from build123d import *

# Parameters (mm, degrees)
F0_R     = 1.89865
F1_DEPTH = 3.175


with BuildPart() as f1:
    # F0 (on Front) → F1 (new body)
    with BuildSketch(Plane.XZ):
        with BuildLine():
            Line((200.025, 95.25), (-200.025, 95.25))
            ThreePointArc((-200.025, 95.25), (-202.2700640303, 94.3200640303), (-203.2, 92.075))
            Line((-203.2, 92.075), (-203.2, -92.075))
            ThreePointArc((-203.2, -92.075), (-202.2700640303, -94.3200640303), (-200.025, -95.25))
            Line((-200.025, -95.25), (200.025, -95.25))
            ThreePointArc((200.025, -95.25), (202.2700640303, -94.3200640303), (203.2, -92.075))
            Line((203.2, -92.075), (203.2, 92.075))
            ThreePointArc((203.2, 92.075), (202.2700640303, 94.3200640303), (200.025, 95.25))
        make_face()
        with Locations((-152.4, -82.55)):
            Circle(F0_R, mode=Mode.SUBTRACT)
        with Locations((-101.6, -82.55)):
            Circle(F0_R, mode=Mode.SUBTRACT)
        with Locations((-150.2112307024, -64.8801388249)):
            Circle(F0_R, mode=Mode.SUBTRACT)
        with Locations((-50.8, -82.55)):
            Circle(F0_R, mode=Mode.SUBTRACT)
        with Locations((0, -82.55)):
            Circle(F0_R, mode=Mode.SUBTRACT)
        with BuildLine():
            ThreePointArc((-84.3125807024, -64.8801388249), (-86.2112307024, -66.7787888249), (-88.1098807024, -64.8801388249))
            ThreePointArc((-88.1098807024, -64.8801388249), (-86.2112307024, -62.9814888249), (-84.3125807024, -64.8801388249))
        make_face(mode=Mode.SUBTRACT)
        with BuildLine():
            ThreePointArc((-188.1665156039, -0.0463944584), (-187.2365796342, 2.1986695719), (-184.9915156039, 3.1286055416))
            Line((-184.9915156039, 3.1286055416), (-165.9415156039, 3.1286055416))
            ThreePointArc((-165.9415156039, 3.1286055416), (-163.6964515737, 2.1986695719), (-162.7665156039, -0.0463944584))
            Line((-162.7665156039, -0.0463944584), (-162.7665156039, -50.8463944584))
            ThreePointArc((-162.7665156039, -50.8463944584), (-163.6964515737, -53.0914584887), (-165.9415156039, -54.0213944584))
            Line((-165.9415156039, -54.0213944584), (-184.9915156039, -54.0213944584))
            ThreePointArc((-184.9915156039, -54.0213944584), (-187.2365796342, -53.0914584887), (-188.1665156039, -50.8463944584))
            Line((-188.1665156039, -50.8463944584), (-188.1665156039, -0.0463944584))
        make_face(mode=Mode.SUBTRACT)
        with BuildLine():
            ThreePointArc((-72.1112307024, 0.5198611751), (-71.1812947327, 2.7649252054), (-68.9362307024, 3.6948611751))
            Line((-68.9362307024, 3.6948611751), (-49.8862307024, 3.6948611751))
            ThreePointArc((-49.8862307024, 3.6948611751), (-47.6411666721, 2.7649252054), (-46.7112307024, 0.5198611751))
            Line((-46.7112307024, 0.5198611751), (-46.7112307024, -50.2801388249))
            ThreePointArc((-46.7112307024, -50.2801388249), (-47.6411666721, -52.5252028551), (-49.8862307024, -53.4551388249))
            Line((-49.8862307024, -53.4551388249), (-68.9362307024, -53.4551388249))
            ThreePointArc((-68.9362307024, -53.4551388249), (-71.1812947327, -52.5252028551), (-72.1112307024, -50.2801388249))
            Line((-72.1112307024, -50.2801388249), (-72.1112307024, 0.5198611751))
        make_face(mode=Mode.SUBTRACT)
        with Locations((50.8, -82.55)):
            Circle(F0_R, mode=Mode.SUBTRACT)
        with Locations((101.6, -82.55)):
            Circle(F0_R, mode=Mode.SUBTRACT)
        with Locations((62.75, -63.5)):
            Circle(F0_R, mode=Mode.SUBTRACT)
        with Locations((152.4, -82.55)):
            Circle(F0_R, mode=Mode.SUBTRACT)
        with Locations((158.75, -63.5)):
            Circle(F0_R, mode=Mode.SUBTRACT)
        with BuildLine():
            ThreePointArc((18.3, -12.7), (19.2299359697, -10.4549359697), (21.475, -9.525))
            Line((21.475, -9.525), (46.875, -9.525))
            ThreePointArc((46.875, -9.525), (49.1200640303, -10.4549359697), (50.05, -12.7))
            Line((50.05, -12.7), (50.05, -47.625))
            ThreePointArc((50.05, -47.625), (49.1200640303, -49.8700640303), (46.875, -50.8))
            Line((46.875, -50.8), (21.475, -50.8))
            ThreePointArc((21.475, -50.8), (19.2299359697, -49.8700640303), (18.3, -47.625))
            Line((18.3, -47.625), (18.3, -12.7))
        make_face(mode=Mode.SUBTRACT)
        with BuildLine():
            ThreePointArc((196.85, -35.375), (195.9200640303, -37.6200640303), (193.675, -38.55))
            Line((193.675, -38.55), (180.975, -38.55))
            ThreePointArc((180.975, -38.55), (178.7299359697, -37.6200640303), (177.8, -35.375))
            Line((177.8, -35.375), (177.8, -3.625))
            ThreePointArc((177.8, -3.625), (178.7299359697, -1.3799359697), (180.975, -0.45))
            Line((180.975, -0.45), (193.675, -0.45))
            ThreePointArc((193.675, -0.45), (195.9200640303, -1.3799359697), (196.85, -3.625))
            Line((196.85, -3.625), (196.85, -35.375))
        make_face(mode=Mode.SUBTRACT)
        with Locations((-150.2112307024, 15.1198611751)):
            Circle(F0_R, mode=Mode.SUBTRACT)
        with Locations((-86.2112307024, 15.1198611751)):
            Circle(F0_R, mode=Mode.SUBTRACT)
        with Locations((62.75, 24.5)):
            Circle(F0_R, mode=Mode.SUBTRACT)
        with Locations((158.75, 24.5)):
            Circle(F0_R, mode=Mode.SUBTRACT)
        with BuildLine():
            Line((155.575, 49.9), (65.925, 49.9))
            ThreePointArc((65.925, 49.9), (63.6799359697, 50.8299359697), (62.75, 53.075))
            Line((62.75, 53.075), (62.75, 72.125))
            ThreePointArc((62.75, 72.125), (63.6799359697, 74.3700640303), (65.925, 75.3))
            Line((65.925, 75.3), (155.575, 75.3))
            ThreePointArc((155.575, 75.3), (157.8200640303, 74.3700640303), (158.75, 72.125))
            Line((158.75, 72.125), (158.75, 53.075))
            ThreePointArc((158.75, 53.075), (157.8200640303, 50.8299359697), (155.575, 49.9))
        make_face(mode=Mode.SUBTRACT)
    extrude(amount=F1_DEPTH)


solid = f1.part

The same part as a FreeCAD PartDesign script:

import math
import FreeCAD as App
import Part
import Sketcher
from FreeCAD import Vector
Q = App.Units.Quantity

doc = App.newDocument("Part")
body = doc.addObject("PartDesign::Body", "Body")

# Sketch on XZ plane
sketch1 = body.newObject("Sketcher::SketchObject", "Sketch")
sketch1.AttachmentSupport = (doc.getObject("XZ_Plane"), [""])
sketch1.MapMode = "FlatFace"
sketch1.addGeometry([
    Part.LineSegment(Vector(200, 95.2, 0), Vector(-200, 95.2, 0)),  # 0
    Part.ArcOfCircle(Part.Circle(Vector(-200, 92.1, 0), Vector(0, 0, 1), 3.2), math.radians(90), math.radians(180)),  # 1
    Part.LineSegment(Vector(-203.2, 92.1, 0), Vector(-203.2, -92.1, 0)),  # 2
    Part.ArcOfCircle(Part.Circle(Vector(-200, -92.1, 0), Vector(0, 0, 1), 3.2), math.radians(180), math.radians(270)),  # 3
    Part.LineSegment(Vector(-200, -95.2, 0), Vector(200, -95.2, 0)),  # 4
    Part.ArcOfCircle(Part.Circle(Vector(200, -92.1, 0), Vector(0, 0, 1), 3.2), math.radians(-90), math.radians(0)),  # 5
    Part.LineSegment(Vector(203.2, -92.1, 0), Vector(203.2, 92.1, 0)),  # 6
    Part.ArcOfCircle(Part.Circle(Vector(200, 92.1, 0), Vector(0, 0, 1), 3.2), math.radians(0), math.radians(90)),  # 7
    Part.Circle(Vector(-152.4, -82.5, 0), Vector(0, 0, 1), 1.9),  # 8
    Part.Circle(Vector(-150.2, -64.9, 0), Vector(0, 0, 1), 1.9),  # 9
    Part.Circle(Vector(-101.6, -82.5, 0), Vector(0, 0, 1), 1.9),  # 10
    Part.Circle(Vector(-50.8, -82.5, 0), Vector(0, 0, 1), 1.9),  # 11
    Part.Circle(Vector(-86.2, -64.9, 0), Vector(0, 0, 1), 1.9),  # 12
    Part.Circle(Vector(0, -82.5, 0), Vector(0, 0, 1), 1.9),  # 13
    Part.LineSegment(Vector(-188.2, -50.8, 0), Vector(-188.2, 0, 0)),  # 14
    Part.ArcOfCircle(Part.Circle(Vector(-185, 0, 0), Vector(0, 0, 1), 3.2), math.radians(90), math.radians(180)),  # 15
    Part.LineSegment(Vector(-185, 3.1, 0), Vector(-165.9, 3.1, 0)),  # 16
    Part.ArcOfCircle(Part.Circle(Vector(-165.9, 0, 0), Vector(0, 0, 1), 3.2), math.radians(0), math.radians(90)),  # 17
    Part.LineSegment(Vector(-162.8, 0, 0), Vector(-162.8, -50.8, 0)),  # 18
    Part.ArcOfCircle(Part.Circle(Vector(-165.9, -50.8, 0), Vector(0, 0, 1), 3.2), math.radians(-90), math.radians(0)),  # 19
    Part.LineSegment(Vector(-165.9, -54, 0), Vector(-185, -54, 0)),  # 20
    Part.ArcOfCircle(Part.Circle(Vector(-185, -50.8, 0), Vector(0, 0, 1), 3.2), math.radians(180), math.radians(270)),  # 21
    Part.LineSegment(Vector(-72.1, -50.3, 0), Vector(-72.1, 0.5, 0)),  # 22
    Part.ArcOfCircle(Part.Circle(Vector(-68.9, 0.5, 0), Vector(0, 0, 1), 3.2), math.radians(90), math.radians(180)),  # 23
    Part.LineSegment(Vector(-68.9, 3.7, 0), Vector(-49.9, 3.7, 0)),  # 24
    Part.ArcOfCircle(Part.Circle(Vector(-49.9, 0.5, 0), Vector(0, 0, 1), 3.2), math.radians(0), math.radians(90)),  # 25
    Part.LineSegment(Vector(-46.7, 0.5, 0), Vector(-46.7, -50.3, 0)),  # 26
    Part.ArcOfCircle(Part.Circle(Vector(-49.9, -50.3, 0), Vector(0, 0, 1), 3.2), math.radians(-90), math.radians(0)),  # 27
    Part.LineSegment(Vector(-49.9, -53.5, 0), Vector(-68.9, -53.5, 0)),  # 28
    Part.ArcOfCircle(Part.Circle(Vector(-68.9, -50.3, 0), Vector(0, 0, 1), 3.2), math.radians(180), math.radians(270)),  # 29
    Part.Circle(Vector(50.8, -82.5, 0), Vector(0, 0, 1), 1.9),  # 30
    Part.Circle(Vector(62.8, -63.5, 0), Vector(0, 0, 1), 1.9),  # 31
    Part.Circle(Vector(101.6, -82.5, 0), Vector(0, 0, 1), 1.9),  # 32
    Part.Circle(Vector(152.4, -82.5, 0), Vector(0, 0, 1), 1.9),  # 33
    Part.Circle(Vector(158.8, -63.5, 0), Vector(0, 0, 1), 1.9),  # 34
    Part.LineSegment(Vector(18.3, -47.6, 0), Vector(18.3, -12.7, 0)),  # 35
    Part.ArcOfCircle(Part.Circle(Vector(21.5, -12.7, 0), Vector(0, 0, 1), 3.2), math.radians(90), math.radians(180)),  # 36
    Part.LineSegment(Vector(21.5, -9.5, 0), Vector(46.9, -9.5, 0)),  # 37
    Part.ArcOfCircle(Part.Circle(Vector(46.9, -12.7, 0), Vector(0, 0, 1), 3.2), math.radians(0), math.radians(90)),  # 38
    Part.LineSegment(Vector(50, -12.7, 0), Vector(50, -47.6, 0)),  # 39
    Part.ArcOfCircle(Part.Circle(Vector(46.9, -47.6, 0), Vector(0, 0, 1), 3.2), math.radians(-90), math.radians(0)),  # 40
    Part.LineSegment(Vector(46.9, -50.8, 0), Vector(21.5, -50.8, 0)),  # 41
    Part.ArcOfCircle(Part.Circle(Vector(21.5, -47.6, 0), Vector(0, 0, 1), 3.2), math.radians(180), math.radians(270)),  # 42
    Part.LineSegment(Vector(196.8, -3.6, 0), Vector(196.8, -35.4, 0)),  # 43
    Part.ArcOfCircle(Part.Circle(Vector(193.7, -35.4, 0), Vector(0, 0, 1), 3.2), math.radians(-90), math.radians(0)),  # 44
    Part.LineSegment(Vector(193.7, -38.5, 0), Vector(181, -38.5, 0)),  # 45
    Part.ArcOfCircle(Part.Circle(Vector(181, -35.4, 0), Vector(0, 0, 1), 3.2), math.radians(180), math.radians(270)),  # 46
    Part.LineSegment(Vector(177.8, -35.4, 0), Vector(177.8, -3.6, 0)),  # 47
    Part.ArcOfCircle(Part.Circle(Vector(181, -3.6, 0), Vector(0, 0, 1), 3.2), math.radians(90), math.radians(180)),  # 48
    Part.LineSegment(Vector(181, -0.5, 0), Vector(193.7, -0.5, 0)),  # 49
    Part.ArcOfCircle(Part.Circle(Vector(193.7, -3.6, 0), Vector(0, 0, 1), 3.2), math.radians(0), math.radians(90)),  # 50
    Part.Circle(Vector(-150.2, 15.1, 0), Vector(0, 0, 1), 1.9),  # 51
    Part.Circle(Vector(-86.2, 15.1, 0), Vector(0, 0, 1), 1.9),  # 52
    Part.Circle(Vector(62.8, 24.5, 0), Vector(0, 0, 1), 1.9),  # 53
    Part.Circle(Vector(158.8, 24.5, 0), Vector(0, 0, 1), 1.9),  # 54
    Part.ArcOfCircle(Part.Circle(Vector(155.6, 53.1, 0), Vector(0, 0, 1), 3.2), math.radians(-90), math.radians(0)),  # 55
    Part.LineSegment(Vector(155.6, 49.9, 0), Vector(65.9, 49.9, 0)),  # 56
    Part.ArcOfCircle(Part.Circle(Vector(65.9, 53.1, 0), Vector(0, 0, 1), 3.2), math.radians(180), math.radians(270)),  # 57
    Part.LineSegment(Vector(62.8, 53.1, 0), Vector(62.8, 72.1, 0)),  # 58
    Part.ArcOfCircle(Part.Circle(Vector(65.9, 72.1, 0), Vector(0, 0, 1), 3.2), math.radians(90), math.radians(180)),  # 59
    Part.LineSegment(Vector(65.9, 75.3, 0), Vector(155.6, 75.3, 0)),  # 60
    Part.ArcOfCircle(Part.Circle(Vector(155.6, 72.1, 0), Vector(0, 0, 1), 3.2), math.radians(0), math.radians(90)),  # 61
    Part.LineSegment(Vector(158.8, 72.1, 0), Vector(158.8, 53.1, 0)),  # 62
], False)
sketch1.addConstraint([
    Sketcher.Constraint("Tangent", 0, 2, 1, 1),
    Sketcher.Constraint("Tangent", 1, 2, 2, 1),
    Sketcher.Constraint("Tangent", 2, 2, 3, 1),
    Sketcher.Constraint("Tangent", 3, 2, 4, 1),
    Sketcher.Constraint("Tangent", 4, 2, 5, 1),
    Sketcher.Constraint("Tangent", 5, 2, 6, 1),
    Sketcher.Constraint("Tangent", 6, 2, 7, 1),
    Sketcher.Constraint("Tangent", 7, 2, 0, 1),
    Sketcher.Constraint("Tangent", 14, 2, 15, 2),
    Sketcher.Constraint("Tangent", 15, 1, 16, 1),
    Sketcher.Constraint("Tangent", 16, 2, 17, 2),
    Sketcher.Constraint("Tangent", 17, 1, 18, 1),
    Sketcher.Constraint("Tangent", 18, 2, 19, 2),
    Sketcher.Constraint("Tangent", 19, 1, 20, 1),
    Sketcher.Constraint("Tangent", 20, 2, 21, 2),
    Sketcher.Constraint("Tangent", 21, 1, 14, 1),
    Sketcher.Constraint("Tangent", 22, 2, 23, 2),
    Sketcher.Constraint("Tangent", 23, 1, 24, 1),
    Sketcher.Constraint("Tangent", 24, 2, 25, 2),
    Sketcher.Constraint("Tangent", 25, 1, 26, 1),
    Sketcher.Constraint("Tangent", 26, 2, 27, 2),
    Sketcher.Constraint("Tangent", 27, 1, 28, 1),
    Sketcher.Constraint("Tangent", 28, 2, 29, 2),
    Sketcher.Constraint("Tangent", 29, 1, 22, 1),
    Sketcher.Constraint("Tangent", 35, 2, 36, 2),
    Sketcher.Constraint("Tangent", 36, 1, 37, 1),
    Sketcher.Constraint("Tangent", 37, 2, 38, 2),
    Sketcher.Constraint("Tangent", 38, 1, 39, 1),
    Sketcher.Constraint("Tangent", 39, 2, 40, 2),
    Sketcher.Constraint("Tangent", 40, 1, 41, 1),
    Sketcher.Constraint("Tangent", 41, 2, 42, 2),
    Sketcher.Constraint("Tangent", 42, 1, 35, 1),
    Sketcher.Constraint("Tangent", 43, 2, 44, 2),
    Sketcher.Constraint("Tangent", 44, 1, 45, 1),
    Sketcher.Constraint("Tangent", 45, 2, 46, 2),
    Sketcher.Constraint("Tangent", 46, 1, 47, 1),
    Sketcher.Constraint("Tangent", 47, 2, 48, 2),
    Sketcher.Constraint("Tangent", 48, 1, 49, 1),
    Sketcher.Constraint("Tangent", 49, 2, 50, 2),
    Sketcher.Constraint("Tangent", 50, 1, 43, 1),
    Sketcher.Constraint("Tangent", 55, 1, 56, 1),
    Sketcher.Constraint("Tangent", 56, 2, 57, 2),
    Sketcher.Constraint("Tangent", 57, 1, 58, 1),
    Sketcher.Constraint("Tangent", 58, 2, 59, 2),
    Sketcher.Constraint("Tangent", 59, 1, 60, 1),
    Sketcher.Constraint("Tangent", 60, 2, 61, 2),
    Sketcher.Constraint("Tangent", 61, 1, 62, 1),
    Sketcher.Constraint("Tangent", 62, 2, 55, 2),
    Sketcher.Constraint("Horizontal", 0),
    Sketcher.Constraint("Vertical", 2),
    Sketcher.Constraint("Horizontal", 4),
    Sketcher.Constraint("Vertical", 6),
    Sketcher.Constraint("Vertical", 14),
    Sketcher.Constraint("Horizontal", 16),
    Sketcher.Constraint("Vertical", 18),
    Sketcher.Constraint("Horizontal", 20),
    Sketcher.Constraint("Vertical", 22),
    Sketcher.Constraint("Horizontal", 24),
    Sketcher.Constraint("Vertical", 26),
    Sketcher.Constraint("Horizontal", 28),
    Sketcher.Constraint("Vertical", 35),
    Sketcher.Constraint("Horizontal", 37),
    Sketcher.Constraint("Vertical", 39),
    Sketcher.Constraint("Horizontal", 41),
    Sketcher.Constraint("Vertical", 43),
    Sketcher.Constraint("Horizontal", 45),
    Sketcher.Constraint("Vertical", 47),
    Sketcher.Constraint("Horizontal", 49),
    Sketcher.Constraint("Horizontal", 56),
    Sketcher.Constraint("Vertical", 58),
    Sketcher.Constraint("Horizontal", 60),
    Sketcher.Constraint("Vertical", 62),
    Sketcher.Constraint("Equal", 1, 3),
    Sketcher.Constraint("Equal", 3, 5),
    Sketcher.Constraint("Equal", 5, 7),
    Sketcher.Constraint("Equal", 8, 9),
    Sketcher.Constraint("Equal", 9, 10),
    Sketcher.Constraint("Equal", 10, 11),
    Sketcher.Constraint("Equal", 11, 12),
    Sketcher.Constraint("Equal", 12, 13),
    Sketcher.Constraint("Equal", 7, 15),
    Sketcher.Constraint("Equal", 15, 17),
    Sketcher.Constraint("Equal", 17, 19),
    Sketcher.Constraint("Equal", 19, 21),
    Sketcher.Constraint("Equal", 21, 23),
    Sketcher.Constraint("Equal", 23, 25),
    Sketcher.Constraint("Equal", 25, 27),
    Sketcher.Constraint("Equal", 27, 29),
    Sketcher.Constraint("Equal", 13, 30),
    Sketcher.Constraint("Equal", 30, 31),
    Sketcher.Constraint("Equal", 31, 32),
    Sketcher.Constraint("Equal", 32, 33),
    Sketcher.Constraint("Equal", 33, 34),
    Sketcher.Constraint("Equal", 29, 36),
    Sketcher.Constraint("Equal", 36, 38),
    Sketcher.Constraint("Equal", 38, 40),
    Sketcher.Constraint("Equal", 40, 42),
    Sketcher.Constraint("Equal", 42, 44),
    Sketcher.Constraint("Equal", 44, 46),
    Sketcher.Constraint("Equal", 46, 48),
    Sketcher.Constraint("Equal", 48, 50),
    Sketcher.Constraint("Equal", 34, 51),
    Sketcher.Constraint("Equal", 51, 52),
    Sketcher.Constraint("Equal", 52, 53),
    Sketcher.Constraint("Equal", 53, 54),
    Sketcher.Constraint("Equal", 50, 55),
    Sketcher.Constraint("Equal", 55, 57),
    Sketcher.Constraint("Equal", 57, 59),
    Sketcher.Constraint("Equal", 59, 61),
    Sketcher.Constraint("Symmetric", 1, 3, 5, 3, -1, 1),
    Sketcher.Constraint("Symmetric", 11, 3, 30, 3, -2),
    Sketcher.Constraint("Symmetric", 10, 3, 32, 3, -2),
    Sketcher.Constraint("Symmetric", 8, 3, 33, 3, -2),
    Sketcher.Constraint("PointOnObject", 13, 3, -2),
    Sketcher.Constraint("Horizontal", 8, 3, 10, 3),
    Sketcher.Constraint("Horizontal", 10, 3, 11, 3),
    Sketcher.Constraint("Horizontal", 9, 3, 12, 3),
    Sketcher.Constraint("Horizontal", 11, 3, 13, 3),
    Sketcher.Constraint("Horizontal", 31, 3, 34, 3),
    Sketcher.Constraint("Horizontal", 51, 3, 52, 3),
    Sketcher.Constraint("Horizontal", 53, 3, 54, 3),
    Sketcher.Constraint("Vertical", 9, 3, 51, 3),
    Sketcher.Constraint("Vertical", 12, 3, 52, 3),
    Sketcher.Constraint("Vertical", 31, 3, 53, 3),
    Sketcher.Constraint("Vertical", 34, 3, 54, 3),
    Sketcher.Constraint("Vertical", 53, 3, 57, 1),
    Sketcher.Constraint("Vertical", 54, 3, 61, 1),
    Sketcher.Constraint("Equal", 20, 24),
    Sketcher.Constraint("Equal", 18, 22),
    Sketcher.Constraint("Equal", 28, 58),
    Sketcher.Constraint("DistanceX", 37, 1, 37, 2, Q("1 in")),
    Sketcher.Constraint("DistanceY", 14, 1, 14, 2, Q("2 in")),
    Sketcher.Constraint("DistanceX", 45, 2, 45, 1, Q("0.5 in")),
    Sketcher.Constraint("DistanceX", 8, 3, -1, 1, Q("6 in")),
    Sketcher.Constraint("DistanceX", 10, 3, -1, 1, Q("4 in")),
    Sketcher.Constraint("DistanceX", 11, 3, -1, 1, Q("2 in")),
    Sketcher.Constraint("DistanceX", 1, 2, -1, 1, Q("8 in")),
    Sketcher.Constraint("DistanceY", 40, 1, -1, 1, Q("2 in")),
    Sketcher.Constraint("DistanceX", -1, 1, 46, 1, Q("7 in")),
    Sketcher.Constraint("Radius", 1, Q("0.125 in")),
    Sketcher.Constraint("Diameter", 8, Q("0.1495 in")),
    Sketcher.Constraint("DistanceX", 16, 1, 16, 2, Q("0.75 in")),
    Sketcher.Constraint("DistanceY", 2, 2, 2, 1, Q("7.25 in")),
    Sketcher.Constraint("DistanceY", 43, 2, 43, 1, Q("1.25 in")),
    Sketcher.Constraint("DistanceY", 31, 3, -1, 1, Q("2.5 in")),
    Sketcher.Constraint("DistanceY", 36, 3, -1, 1, Q("0.5 in")),
    Sketcher.Constraint("DistanceY", 8, 3, -1, 1, Q("3.25 in")),
    Sketcher.Constraint("DistanceX", -1, 1, 34, 3, Q("6.25 in")),
    Sketcher.Constraint("DistanceX", 56, 2, 56, 1, Q("89.65 mm")),
    Sketcher.Constraint("DistanceX", -1, 1, 36, 3, Q("21.475 mm")),
    Sketcher.Constraint("DistanceY", 44, 3, -1, 1, Q("35.375 mm")),
    Sketcher.Constraint("DistanceY", -1, 1, 53, 3, Q("24.5 mm")),
    Sketcher.Constraint("DistanceY", -1, 1, 55, 3, Q("53.075 mm")),
    Sketcher.Constraint("DistanceX", 9, 3, -1, 1, Q("150.211231 mm")),
    Sketcher.Constraint("DistanceY", 9, 3, -1, 1, Q("64.880139 mm")),
    Sketcher.Constraint("DistanceX", 12, 3, -1, 1, Q("86.211231 mm")),
    Sketcher.Constraint("DistanceX", 23, 3, -1, 1, Q("68.936231 mm")),
    Sketcher.Constraint("DistanceY", -1, 1, 23, 3, Q("0.519861 mm")),
    Sketcher.Constraint("DistanceY", -1, 1, 51, 3, Q("15.119861 mm")),
    Sketcher.Constraint("DistanceX", 15, 3, -1, 1, Q("184.991516 mm")),
    Sketcher.Constraint("DistanceY", 15, 3, -1, 1, Q("0.046394 mm")),
])
pad1 = body.newObject("PartDesign::Pad", "Pad")
pad1.Profile = sketch1
pad1.Length = Q("0.125 in")

doc.recompute()
